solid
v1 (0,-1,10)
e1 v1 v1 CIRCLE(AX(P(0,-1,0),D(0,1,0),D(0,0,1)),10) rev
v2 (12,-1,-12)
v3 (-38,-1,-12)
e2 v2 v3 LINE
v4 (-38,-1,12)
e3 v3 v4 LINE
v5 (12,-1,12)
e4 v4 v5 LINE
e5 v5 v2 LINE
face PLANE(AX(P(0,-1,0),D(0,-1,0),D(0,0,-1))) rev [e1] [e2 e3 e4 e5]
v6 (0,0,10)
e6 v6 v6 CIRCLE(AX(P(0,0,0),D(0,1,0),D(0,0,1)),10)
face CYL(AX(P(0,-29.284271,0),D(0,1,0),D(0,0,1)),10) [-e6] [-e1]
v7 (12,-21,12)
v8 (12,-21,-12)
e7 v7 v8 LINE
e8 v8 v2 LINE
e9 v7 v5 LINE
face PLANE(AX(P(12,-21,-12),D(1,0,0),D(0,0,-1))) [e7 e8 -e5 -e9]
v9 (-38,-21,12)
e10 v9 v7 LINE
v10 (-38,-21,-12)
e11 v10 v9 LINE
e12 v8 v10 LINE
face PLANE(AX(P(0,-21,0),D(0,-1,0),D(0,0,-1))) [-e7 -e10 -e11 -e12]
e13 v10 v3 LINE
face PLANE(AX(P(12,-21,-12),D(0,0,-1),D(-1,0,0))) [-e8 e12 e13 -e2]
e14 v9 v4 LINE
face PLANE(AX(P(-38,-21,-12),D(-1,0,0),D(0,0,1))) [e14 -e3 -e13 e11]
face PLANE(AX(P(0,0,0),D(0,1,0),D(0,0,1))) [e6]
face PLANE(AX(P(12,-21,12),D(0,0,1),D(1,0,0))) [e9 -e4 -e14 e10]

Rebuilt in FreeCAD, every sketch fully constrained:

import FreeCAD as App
import Part
import Sketcher

V = App.Vector

doc = App.newDocument("Part")
params = doc.addObject("Spreadsheet::Sheet", "Params")
for row, (alias, value) in enumerate([
    ("sketch1_diameter", "20 mm"),
    ("pad1_length", "1 mm"),
    ("sketch2_width", "50 mm"),
    ("sketch2_height", "24 mm"),
    ("pad2_length", "20 mm"),
], start=1):
    params.set(f"A{row}", alias)
    params.set(f"B{row}", "=" + value)
    params.setAlias(f"B{row}", alias)

body = doc.addObject("PartDesign::Body", "Body")

# Sketch on XZ plane
sketch1 = body.newObject("Sketcher::SketchObject", "Sketch")
sketch1.AttachmentSupport = (doc.getObject("XZ_Plane"), [""])
sketch1.MapMode = "FlatFace"
sketch1.addGeometry(Part.Circle(V(0, 0, 0), V(0, 0, 1), 10), False)
sketch1.addConstraint(Sketcher.Constraint("Coincident", 0, 3, -1, 1))
sketch1.addConstraint(Sketcher.Constraint("Diameter", 0, 20.0))
sketch1.setExpression("Constraints[1]", "Params.sketch1_diameter")
pad1 = body.newObject("PartDesign::Pad", "Pad")
pad1.Profile = sketch1
pad1.setExpression("Length", "Params.pad1_length")

# Sketch on XZ plane
sketch2 = body.newObject("Sketcher::SketchObject", "Sketch001")
sketch2.AttachmentSupport = (doc.getObject("XZ_Plane"), [""])
sketch2.MapMode = "FlatFace"
sketch2.AttachmentOffset = App.Placement(V(0, 0, 1), App.Rotation())
sketch2.addGeometry(Part.LineSegment(V(-38, -12, 0), V(-38, 12, 0)), False)
sketch2.addGeometry(Part.LineSegment(V(-38, 12, 0), V(12, 12, 0)), False)
sketch2.addGeometry(Part.LineSegment(V(12, 12, 0), V(12, -12, 0)), False)
sketch2.addGeometry(Part.LineSegment(V(12, -12, 0), V(-38, -12, 0)), False)
sketch2.addConstraint(Sketcher.Constraint("Coincident", 0, 2, 1, 1))
sketch2.addConstraint(Sketcher.Constraint("Coincident", 1, 2, 2, 1))
sketch2.addConstraint(Sketcher.Constraint("Coincident", 2, 2, 3, 1))
sketch2.addConstraint(Sketcher.Constraint("Coincident", 3, 2, 0, 1))
sketch2.addConstraint(Sketcher.Constraint("Vertical", 0))
sketch2.addConstraint(Sketcher.Constraint("Horizontal", 1))
sketch2.addConstraint(Sketcher.Constraint("Vertical", 2))
sketch2.addConstraint(Sketcher.Constraint("Horizontal", 3))
sketch2.addConstraint(Sketcher.Constraint("DistanceX", 1, 1, 1, 2, 50.0))
sketch2.addConstraint(Sketcher.Constraint("DistanceY", 0, 1, 0, 2, 24.0))
sketch2.addConstraint(Sketcher.Constraint("DistanceX", 0, 2, -1, 1, 38.0))
sketch2.addConstraint(Sketcher.Constraint("DistanceY", -1, 1, 0, 2, 12.0))
sketch2.setExpression("Constraints[8]", "Params.sketch2_width")
sketch2.setExpression("Constraints[9]", "Params.sketch2_height")
pad2 = body.newObject("PartDesign::Pad", "Pad001")
pad2.Profile = sketch2
pad2.setExpression("Length", "Params.pad2_length")

doc.recompute()
